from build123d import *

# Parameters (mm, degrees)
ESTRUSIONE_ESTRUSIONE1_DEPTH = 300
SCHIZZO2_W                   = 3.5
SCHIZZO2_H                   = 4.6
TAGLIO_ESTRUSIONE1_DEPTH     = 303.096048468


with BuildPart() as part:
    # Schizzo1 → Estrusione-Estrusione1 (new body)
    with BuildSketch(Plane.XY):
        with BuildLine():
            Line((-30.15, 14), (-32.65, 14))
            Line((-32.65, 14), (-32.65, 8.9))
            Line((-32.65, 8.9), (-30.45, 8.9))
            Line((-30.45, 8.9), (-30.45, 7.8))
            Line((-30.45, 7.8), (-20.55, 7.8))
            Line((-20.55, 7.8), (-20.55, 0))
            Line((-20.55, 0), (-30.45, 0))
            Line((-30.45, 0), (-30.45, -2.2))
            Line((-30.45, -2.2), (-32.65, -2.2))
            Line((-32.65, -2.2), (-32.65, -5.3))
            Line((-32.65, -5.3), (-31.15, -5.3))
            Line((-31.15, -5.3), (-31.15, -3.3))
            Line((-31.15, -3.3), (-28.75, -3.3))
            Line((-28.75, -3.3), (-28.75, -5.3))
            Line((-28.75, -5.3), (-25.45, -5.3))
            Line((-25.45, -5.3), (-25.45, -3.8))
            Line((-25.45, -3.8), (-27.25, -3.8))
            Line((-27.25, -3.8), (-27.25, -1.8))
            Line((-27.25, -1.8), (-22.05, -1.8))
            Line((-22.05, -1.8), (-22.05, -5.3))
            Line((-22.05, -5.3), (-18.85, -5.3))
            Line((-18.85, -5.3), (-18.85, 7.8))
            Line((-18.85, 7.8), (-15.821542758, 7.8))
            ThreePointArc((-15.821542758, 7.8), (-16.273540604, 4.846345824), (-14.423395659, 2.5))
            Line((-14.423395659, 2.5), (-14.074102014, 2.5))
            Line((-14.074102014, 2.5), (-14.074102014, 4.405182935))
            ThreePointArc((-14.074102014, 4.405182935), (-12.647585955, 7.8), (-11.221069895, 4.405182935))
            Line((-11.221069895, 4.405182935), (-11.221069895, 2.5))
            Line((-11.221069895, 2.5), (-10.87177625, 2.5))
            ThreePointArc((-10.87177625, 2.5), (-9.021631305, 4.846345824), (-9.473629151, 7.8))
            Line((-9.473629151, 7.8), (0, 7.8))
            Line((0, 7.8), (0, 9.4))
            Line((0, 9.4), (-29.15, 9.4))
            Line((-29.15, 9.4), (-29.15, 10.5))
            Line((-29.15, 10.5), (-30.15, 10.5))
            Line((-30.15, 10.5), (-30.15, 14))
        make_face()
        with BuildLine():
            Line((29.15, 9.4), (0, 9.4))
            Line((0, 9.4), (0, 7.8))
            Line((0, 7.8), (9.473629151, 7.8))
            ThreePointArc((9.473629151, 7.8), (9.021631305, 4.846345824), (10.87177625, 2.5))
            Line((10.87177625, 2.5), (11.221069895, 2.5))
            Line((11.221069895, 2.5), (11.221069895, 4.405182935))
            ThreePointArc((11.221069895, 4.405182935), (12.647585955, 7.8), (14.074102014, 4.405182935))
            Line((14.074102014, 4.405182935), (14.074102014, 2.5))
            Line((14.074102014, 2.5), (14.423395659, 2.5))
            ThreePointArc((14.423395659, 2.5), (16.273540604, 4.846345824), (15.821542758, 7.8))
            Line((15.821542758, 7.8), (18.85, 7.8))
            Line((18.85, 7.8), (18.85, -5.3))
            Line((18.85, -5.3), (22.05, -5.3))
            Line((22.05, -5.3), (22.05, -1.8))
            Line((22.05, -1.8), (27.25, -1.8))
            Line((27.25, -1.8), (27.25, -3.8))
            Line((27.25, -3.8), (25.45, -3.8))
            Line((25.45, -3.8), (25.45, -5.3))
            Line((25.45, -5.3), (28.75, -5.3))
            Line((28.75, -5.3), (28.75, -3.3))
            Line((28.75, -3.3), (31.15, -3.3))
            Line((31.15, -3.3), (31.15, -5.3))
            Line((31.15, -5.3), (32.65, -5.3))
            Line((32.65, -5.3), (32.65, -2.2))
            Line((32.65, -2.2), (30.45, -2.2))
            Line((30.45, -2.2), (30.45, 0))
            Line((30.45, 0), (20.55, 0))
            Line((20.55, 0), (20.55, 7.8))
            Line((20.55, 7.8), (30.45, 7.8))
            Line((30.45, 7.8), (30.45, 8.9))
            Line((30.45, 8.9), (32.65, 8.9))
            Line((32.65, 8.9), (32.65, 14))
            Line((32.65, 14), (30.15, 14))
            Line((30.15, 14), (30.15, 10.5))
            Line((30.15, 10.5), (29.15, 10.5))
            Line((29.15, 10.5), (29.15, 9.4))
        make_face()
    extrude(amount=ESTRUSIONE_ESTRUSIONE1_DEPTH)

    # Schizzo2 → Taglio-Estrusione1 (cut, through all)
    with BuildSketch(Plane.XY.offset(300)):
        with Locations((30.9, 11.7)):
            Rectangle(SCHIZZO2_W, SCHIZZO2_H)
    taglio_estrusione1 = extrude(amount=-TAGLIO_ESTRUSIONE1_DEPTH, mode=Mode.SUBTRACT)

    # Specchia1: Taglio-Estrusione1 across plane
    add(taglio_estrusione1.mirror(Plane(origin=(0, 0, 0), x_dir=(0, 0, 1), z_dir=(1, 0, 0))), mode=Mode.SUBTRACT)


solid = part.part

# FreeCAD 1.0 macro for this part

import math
import FreeCAD as App
import Part
import Sketcher
from FreeCAD import Vector
Q = App.Units.Quantity


def add_polygon(sketch, points):
    """Adds a closed chain of lines whose ends are joined by coincident constraints."""
    first, n = sketch.GeometryCount, len(points)
    for a, b in zip(points, points[1:] + points[:1]):
        sketch.addGeometry(Part.LineSegment(App.Vector(*a, 0), App.Vector(*b, 0)), False)
    for i in range(n):
        sketch.addConstraint(Sketcher.Constraint("Coincident", first + i, 2, first + (i + 1) % n, 1))

doc = App.newDocument("Part")
body = doc.addObject("PartDesign::Body", "Body")

# Sketch on XY plane
sketch1 = body.newObject("Sketcher::SketchObject", "Sketch")
sketch1.AttachmentSupport = (doc.getObject("XY_Plane"), [""])
sketch1.MapMode = "FlatFace"
sketch1.addGeometry([
    Part.LineSegment(Vector(-30.15, 14, 0), Vector(-32.65, 14, 0)),  # 0
    Part.LineSegment(Vector(-32.65, 14, 0), Vector(-32.65, 8.9, 0)),  # 1
    Part.LineSegment(Vector(-32.65, 8.9, 0), Vector(-30.45, 8.9, 0)),  # 2
    Part.LineSegment(Vector(-30.45, 8.9, 0), Vector(-30.45, 7.8, 0)),  # 3
    Part.LineSegment(Vector(-30.45, 7.8, 0), Vector(-20.55, 7.8, 0)),  # 4
    Part.LineSegment(Vector(-20.55, 7.8, 0), Vector(-20.55, 0, 0)),  # 5
    Part.LineSegment(Vector(-20.55, 0, 0), Vector(-30.45, 0, 0)),  # 6
    Part.LineSegment(Vector(-30.45, 0, 0), Vector(-30.45, -2.2, 0)),  # 7
    Part.LineSegment(Vector(-30.45, -2.2, 0), Vector(-32.65, -2.2, 0)),  # 8
    Part.LineSegment(Vector(-32.65, -2.2, 0), Vector(-32.65, -5.3, 0)),  # 9
    Part.LineSegment(Vector(-32.65, -5.3, 0), Vector(-31.15, -5.3, 0)),  # 10
    Part.LineSegment(Vector(-31.15, -5.3, 0), Vector(-31.15, -3.3, 0)),  # 11
    Part.LineSegment(Vector(-31.15, -3.3, 0), Vector(-28.75, -3.3, 0)),  # 12
    Part.LineSegment(Vector(-28.75, -3.3, 0), Vector(-28.75, -5.3, 0)),  # 13
    Part.LineSegment(Vector(-28.75, -5.3, 0), Vector(-25.45, -5.3, 0)),  # 14
    Part.LineSegment(Vector(-25.45, -5.3, 0), Vector(-25.45, -3.8, 0)),  # 15
    Part.LineSegment(Vector(-25.45, -3.8, 0), Vector(-27.25, -3.8, 0)),  # 16
    Part.LineSegment(Vector(-27.25, -3.8, 0), Vector(-27.25, -1.8, 0)),  # 17
    Part.LineSegment(Vector(-27.25, -1.8, 0), Vector(-22.05, -1.8, 0)),  # 18
    Part.LineSegment(Vector(-22.05, -1.8, 0), Vector(-22.05, -5.3, 0)),  # 19
    Part.LineSegment(Vector(-22.05, -5.3, 0), Vector(-18.85, -5.3, 0)),  # 20
    Part.LineSegment(Vector(-18.85, -5.3, 0), Vector(-18.85, 7.8, 0)),  # 21
    Part.LineSegment(Vector(-18.85, 7.8, 0), Vector(-15.82, 7.8, 0)),  # 22
    Part.ArcOfCircle(Part.Circle(Vector(-12.65, 5.8, 0), Vector(0, 0, 1), 3.75), math.radians(148), math.radians(242)),  # 23
    Part.LineSegment(Vector(-14.42, 2.5, 0), Vector(-14.07, 2.5, 0)),  # 24
    Part.LineSegment(Vector(-14.07, 2.5, 0), Vector(-14.07, 4.41, 0)),  # 25
    Part.ArcOfCircle(Part.Circle(Vector(-12.65, 5.8, 0), Vector(0, 0, 1), 2), math.radians(-44), math.radians(224)),  # 26
    Part.LineSegment(Vector(-11.22, 4.41, 0), Vector(-11.22, 2.5, 0)),  # 27
    Part.LineSegment(Vector(-11.22, 2.5, 0), Vector(-10.87, 2.5, 0)),  # 28
    Part.ArcOfCircle(Part.Circle(Vector(-12.65, 5.8, 0), Vector(0, 0, 1), 3.75), math.radians(-62), math.radians(32)),  # 29
    Part.LineSegment(Vector(-9.47, 7.8, 0), Vector(9.47, 7.8, 0)),  # 30
    Part.ArcOfCircle(Part.Circle(Vector(12.65, 5.8, 0), Vector(0, 0, 1), 3.75), math.radians(148), math.radians(242)),  # 31
    Part.LineSegment(Vector(10.87, 2.5, 0), Vector(11.22, 2.5, 0)),  # 32
    Part.LineSegment(Vector(11.22, 2.5, 0), Vector(11.22, 4.41, 0)),  # 33
    Part.ArcOfCircle(Part.Circle(Vector(12.65, 5.8, 0), Vector(0, 0, 1), 2), math.radians(-44), math.radians(224)),  # 34
    Part.LineSegment(Vector(14.07, 4.41, 0), Vector(14.07, 2.5, 0)),  # 35
    Part.LineSegment(Vector(14.07, 2.5, 0), Vector(14.42, 2.5, 0)),  # 36
    Part.ArcOfCircle(Part.Circle(Vector(12.65, 5.8, 0), Vector(0, 0, 1), 3.75), math.radians(-62), math.radians(32)),  # 37
    Part.LineSegment(Vector(15.82, 7.8, 0), Vector(18.85, 7.8, 0)),  # 38
    Part.LineSegment(Vector(18.85, 7.8, 0), Vector(18.85, -5.3, 0)),  # 39
    Part.LineSegment(Vector(18.85, -5.3, 0), Vector(22.05, -5.3, 0)),  # 40
    Part.LineSegment(Vector(22.05, -5.3, 0), Vector(22.05, -1.8, 0)),  # 41
    Part.LineSegment(Vector(22.05, -1.8, 0), Vector(27.25, -1.8, 0)),  # 42
    Part.LineSegment(Vector(27.25, -1.8, 0), Vector(27.25, -3.8, 0)),  # 43
    Part.LineSegment(Vector(27.25, -3.8, 0), Vector(25.45, -3.8, 0)),  # 44
    Part.LineSegment(Vector(25.45, -3.8, 0), Vector(25.45, -5.3, 0)),  # 45
    Part.LineSegment(Vector(25.45, -5.3, 0), Vector(28.75, -5.3, 0)),  # 46
    Part.LineSegment(Vector(28.75, -5.3, 0), Vector(28.75, -3.3, 0)),  # 47
    Part.LineSegment(Vector(28.75, -3.3, 0), Vector(31.15, -3.3, 0)),  # 48
    Part.LineSegment(Vector(31.15, -3.3, 0), Vector(31.15, -5.3, 0)),  # 49
    Part.LineSegment(Vector(31.15, -5.3, 0), Vector(32.65, -5.3, 0)),  # 50
    Part.LineSegment(Vector(32.65, -5.3, 0), Vector(32.65, -2.2, 0)),  # 51
    Part.LineSegment(Vector(32.65, -2.2, 0), Vector(30.45, -2.2, 0)),  # 52
    Part.LineSegment(Vector(30.45, -2.2, 0), Vector(30.45, 0, 0)),  # 53
    Part.LineSegment(Vector(30.45, 0, 0), Vector(20.55, 0, 0)),  # 54
    Part.LineSegment(Vector(20.55, 0, 0), Vector(20.55, 7.8, 0)),  # 55
    Part.LineSegment(Vector(20.55, 7.8, 0), Vector(30.45, 7.8, 0)),  # 56
    Part.LineSegment(Vector(30.45, 7.8, 0), Vector(30.45, 8.9, 0)),  # 57
    Part.LineSegment(Vector(30.45, 8.9, 0), Vector(32.65, 8.9, 0)),  # 58
    Part.LineSegment(Vector(32.65, 8.9, 0), Vector(32.65, 14, 0)),  # 59
    Part.LineSegment(Vector(32.65, 14, 0), Vector(30.15, 14, 0)),  # 60
    Part.LineSegment(Vector(30.15, 14, 0), Vector(30.15, 10.5, 0)),  # 61
    Part.LineSegment(Vector(30.15, 10.5, 0), Vector(29.15, 10.5, 0)),  # 62
    Part.LineSegment(Vector(29.15, 10.5, 0), Vector(29.15, 9.4, 0)),  # 63
    Part.LineSegment(Vector(29.15, 9.4, 0), Vector(-29.15, 9.4, 0)),  # 64
    Part.LineSegment(Vector(-29.15, 9.4, 0), Vector(-29.15, 10.5, 0)),  # 65
    Part.LineSegment(Vector(-29.15, 10.5, 0), Vector(-30.15, 10.5, 0)),  # 66
    Part.LineSegment(Vector(-30.15, 10.5, 0), Vector(-30.15, 14, 0)),  # 67
], False)
sketch1.addConstraint([
    Sketcher.Constraint("Coincident", 0, 2, 1, 1),
    Sketcher.Constraint("Coincident", 1, 2, 2, 1),
    Sketcher.Constraint("Coincident", 2, 2, 3, 1),
    Sketcher.Constraint("Coincident", 3, 2, 4, 1),
    Sketcher.Constraint("Coincident", 4, 2, 5, 1),
    Sketcher.Constraint("Coincident", 5, 2, 6, 1),
    Sketcher.Constraint("Coincident", 6, 2, 7, 1),
    Sketcher.Constraint("Coincident", 7, 2, 8, 1),
    Sketcher.Constraint("Coincident", 8, 2, 9, 1),
    Sketcher.Constraint("Coincident", 9, 2, 10, 1),
    Sketcher.Constraint("Coincident", 10, 2, 11, 1),
    Sketcher.Constraint("Coincident", 11, 2, 12, 1),
    Sketcher.Constraint("Coincident", 12, 2, 13, 1),
    Sketcher.Constraint("Coincident", 13, 2, 14, 1),
    Sketcher.Constraint("Coincident", 14, 2, 15, 1),
    Sketcher.Constraint("Coincident", 15, 2, 16, 1),
    Sketcher.Constraint("Coincident", 16, 2, 17, 1),
    Sketcher.Constraint("Coincident", 17, 2, 18, 1),
    Sketcher.Constraint("Coincident", 18, 2, 19, 1),
    Sketcher.Constraint("Coincident", 19, 2, 20, 1),
    Sketcher.Constraint("Coincident", 20, 2, 21, 1),
    Sketcher.Constraint("Coincident", 21, 2, 22, 1),
    Sketcher.Constraint("Coincident", 22, 2, 23, 1),
    Sketcher.Constraint("Coincident", 23, 2, 24, 1),
    Sketcher.Constraint("Coincident", 24, 2, 25, 1),
    Sketcher.Constraint("Coincident", 25, 2, 26, 2),
    Sketcher.Constraint("Coincident", 26, 1, 27, 1),
    Sketcher.Constraint("Coincident", 27, 2, 28, 1),
    Sketcher.Constraint("Coincident", 28, 2, 29, 1),
    Sketcher.Constraint("Coincident", 29, 2, 30, 1),
    Sketcher.Constraint("Coincident", 30, 2, 31, 1),
    Sketcher.Constraint("Coincident", 31, 2, 32, 1),
    Sketcher.Constraint("Coincident", 32, 2, 33, 1),
    Sketcher.Constraint("Coincident", 33, 2, 34, 2),
    Sketcher.Constraint("Coincident", 34, 1, 35, 1),
    Sketcher.Constraint("Coincident", 35, 2, 36, 1),
    Sketcher.Constraint("Coincident", 36, 2, 37, 1),
    Sketcher.Constraint("Coincident", 37, 2, 38, 1),
    Sketcher.Constraint("Coincident", 38, 2, 39, 1),
    Sketcher.Constraint("Coincident", 39, 2, 40, 1),
    Sketcher.Constraint("Coincident", 40, 2, 41, 1),
    Sketcher.Constraint("Coincident", 41, 2, 42, 1),
    Sketcher.Constraint("Coincident", 42, 2, 43, 1),
    Sketcher.Constraint("Coincident", 43, 2, 44, 1),
    Sketcher.Constraint("Coincident", 44, 2, 45, 1),
    Sketcher.Constraint("Coincident", 45, 2, 46, 1),
    Sketcher.Constraint("Coincident", 46, 2, 47, 1),
    Sketcher.Constraint("Coincident", 47, 2, 48, 1),
    Sketcher.Constraint("Coincident", 48, 2, 49, 1),
    Sketcher.Constraint("Coincident", 49, 2, 50, 1),
    Sketcher.Constraint("Coincident", 50, 2, 51, 1),
    Sketcher.Constraint("Coincident", 51, 2, 52, 1),
    Sketcher.Constraint("Coincident", 52, 2, 53, 1),
    Sketcher.Constraint("Coincident", 53, 2, 54, 1),
    Sketcher.Constraint("Coincident", 54, 2, 55, 1),
    Sketcher.Constraint("Coincident", 55, 2, 56, 1),
    Sketcher.Constraint("Coincident", 56, 2, 57, 1),
    Sketcher.Constraint("Coincident", 57, 2, 58, 1),
    Sketcher.Constraint("Coincident", 58, 2, 59, 1),
    Sketcher.Constraint("Coincident", 59, 2, 60, 1),
    Sketcher.Constraint("Coincident", 60, 2, 61, 1),
    Sketcher.Constraint("Coincident", 61, 2, 62, 1),
    Sketcher.Constraint("Coincident", 62, 2, 63, 1),
    Sketcher.Constraint("Coincident", 63, 2, 64, 1),
    Sketcher.Constraint("Coincident", 64, 2, 65, 1),
    Sketcher.Constraint("Coincident", 65, 2, 66, 1),
    Sketcher.Constraint("Coincident", 66, 2, 67, 1),
    Sketcher.Constraint("Coincident", 67, 2, 0, 1),
    Sketcher.Constraint("Horizontal", 0),
    Sketcher.Constraint("Vertical", 1),
    Sketcher.Constraint("Horizontal", 2),
    Sketcher.Constraint("Vertical", 3),
    Sketcher.Constraint("Horizontal", 4),
    Sketcher.Constraint("Vertical", 5),
    Sketcher.Constraint("Horizontal", 6),
    Sketcher.Constraint("Vertical", 7),
    Sketcher.Constraint("Horizontal", 8),
    Sketcher.Constraint("Vertical", 9),
    Sketcher.Constraint("Horizontal", 10),
    Sketcher.Constraint("Vertical", 11),
    Sketcher.Constraint("Horizontal", 12),
    Sketcher.Constraint("Vertical", 13),
    Sketcher.Constraint("Horizontal", 14),
    Sketcher.Constraint("Vertical", 15),
    Sketcher.Constraint("Horizontal", 16),
    Sketcher.Constraint("Vertical", 17),
    Sketcher.Constraint("Horizontal", 18),
    Sketcher.Constraint("Vertical", 19),
    Sketcher.Constraint("Horizontal", 20),
    Sketcher.Constraint("Vertical", 21),
    Sketcher.Constraint("Horizontal", 22),
    Sketcher.Constraint("Horizontal", 24),
    Sketcher.Constraint("Vertical", 25),
    Sketcher.Constraint("Vertical", 27),
    Sketcher.Constraint("Horizontal", 28),
    Sketcher.Constraint("Horizontal", 30),
    Sketcher.Constraint("Horizontal", 32),
    Sketcher.Constraint("Vertical", 33),
    Sketcher.Constraint("Vertical", 35),
    Sketcher.Constraint("Horizontal", 36),
    Sketcher.Constraint("Horizontal", 38),
    Sketcher.Constraint("Vertical", 39),
    Sketcher.Constraint("Horizontal", 40),
    Sketcher.Constraint("Vertical", 41),
    Sketcher.Constraint("Horizontal", 42),
    Sketcher.Constraint("Vertical", 43),
    Sketcher.Constraint("Horizontal", 44),
    Sketcher.Constraint("Vertical", 45),
    Sketcher.Constraint("Horizontal", 46),
    Sketcher.Constraint("Vertical", 47),
    Sketcher.Constraint("Horizontal", 48),
    Sketcher.Constraint("Vertical", 49),
    Sketcher.Constraint("Horizontal", 50),
    Sketcher.Constraint("Vertical", 51),
    Sketcher.Constraint("Horizontal", 52),
    Sketcher.Constraint("Vertical", 53),
    Sketcher.Constraint("Horizontal", 54),
    Sketcher.Constraint("Vertical", 55),
    Sketcher.Constraint("Horizontal", 56),
    Sketcher.Constraint("Vertical", 57),
    Sketcher.Constraint("Horizontal", 58),
    Sketcher.Constraint("Vertical", 59),
    Sketcher.Constraint("Horizontal", 60),
    Sketcher.Constraint("Vertical", 61),
    Sketcher.Constraint("Horizontal", 62),
    Sketcher.Constraint("Vertical", 63),
    Sketcher.Constraint("Horizontal", 64),
    Sketcher.Constraint("Vertical", 65),
    Sketcher.Constraint("Horizontal", 66),
    Sketcher.Constraint("Vertical", 67),
    Sketcher.Constraint("Coincident", 26, 3, 23, 3),
    Sketcher.Constraint("Coincident", 29, 3, 23, 3),
    Sketcher.Constraint("Coincident", 34, 3, 31, 3),
    Sketcher.Constraint("Coincident", 37, 3, 31, 3),
    Sketcher.Constraint("Equal", 23, 29),
    Sketcher.Constraint("Equal", 29, 31),
    Sketcher.Constraint("Equal", 26, 34),
    Sketcher.Constraint("Equal", 31, 37),
    Sketcher.Constraint("Symmetric", 6, 2, 53, 2, -1, 1),
    Sketcher.Constraint("Symmetric", 23, 3, 31, 3, -2),
    Sketcher.Constraint("Symmetric", 27, 2, 32, 2, -2),
    Sketcher.Constraint("Symmetric", 24, 2, 35, 2, -2),
    Sketcher.Constraint("Symmetric", 21, 2, 38, 2, -2),
    Sketcher.Constraint("Symmetric", 19, 2, 40, 2, -2),
    Sketcher.Constraint("Symmetric", 17, 2, 42, 2, -2),
    Sketcher.Constraint("Symmetric", 15, 2, 44, 2, -2),
    Sketcher.Constraint("Symmetric", 13, 2, 46, 2, -2),
    Sketcher.Constraint("Symmetric", 11, 2, 48, 2, -2),
    Sketcher.Constraint("Symmetric", 9, 2, 50, 2, -2),
    Sketcher.Constraint("Symmetric", 5, 2, 54, 2, -2),
    Sketcher.Constraint("Symmetric", 3, 2, 56, 2, -2),
    Sketcher.Constraint("Symmetric", 1, 2, 58, 2, -2),
    Sketcher.Constraint("Symmetric", 62, 2, 65, 2, -2),
    Sketcher.Constraint("Symmetric", 60, 2, 67, 2, -2),
    Sketcher.Constraint("Horizontal", 10, 2, 13, 2),
    Sketcher.Constraint("Horizontal", 14, 2, 19, 2),
    Sketcher.Constraint("Horizontal", 4, 2, 21, 2),
    Sketcher.Constraint("Horizontal", 25, 2, 26, 1),
    Sketcher.Constraint("Horizontal", 24, 2, 27, 2),
    Sketcher.Constraint("Horizontal", 22, 2, 29, 2),
    Sketcher.Constraint("Horizontal", 8, 2, 51, 2),
    Sketcher.Constraint("Vertical", 3, 2, 6, 2),
    Sketcher.Constraint("Vertical", 1, 2, 8, 2),
    Sketcher.Constraint("Equal", 58, 7),
    Sketcher.Constraint("Equal", 50, 15),
    Sketcher.Constraint("Equal", 13, 17),
    Sketcher.Constraint("Equal", 41, 61),
    Sketcher.Constraint("Equal", 57, 63),
    Sketcher.Constraint("DistanceX", 62, 2, 62, 1, Q("1 mm")),
    Sketcher.Constraint("DistanceY", 11, 1, 11, 2, Q("2 mm")),
    Sketcher.Constraint("Radius", 23, Q("3.75 mm")),
    Sketcher.Constraint("DistanceX", 0, 2, 0, 1, Q("2.5 mm")),
    Sketcher.Constraint("DistanceX", 2, 1, 2, 2, Q("2.2 mm")),
    Sketcher.Constraint("DistanceX", 4, 1, 4, 2, Q("9.9 mm")),
    Sketcher.Constraint("DistanceX", 10, 1, 10, 2, Q("1.5 mm")),
    Sketcher.Constraint("DistanceX", 12, 1, 12, 2, Q("2.4 mm")),
    Sketcher.Constraint("DistanceX", 14, 1, 14, 2, Q("3.3 mm")),
    Sketcher.Constraint("DistanceX", 16, 2, 16, 1, Q("1.8 mm")),
    Sketcher.Constraint("DistanceX", 18, 1, 18, 2, Q("5.2 mm")),
    Sketcher.Constraint("DistanceX", 20, 1, 20, 2, Q("3.2 mm")),
    Sketcher.Constraint("DistanceX", 64, 2, 64, 1, Q("58.3 mm")),
    Sketcher.Constraint("DistanceY", 1, 2, 1, 1, Q("5.1 mm")),
    Sketcher.Constraint("DistanceY", 3, 2, 3, 1, Q("1.1 mm")),
    Sketcher.Constraint("DistanceY", 5, 2, 5, 1, Q("7.8 mm")),
    Sketcher.Constraint("DistanceY", 9, 2, 9, 1, Q("3.1 mm")),
    Sketcher.Constraint("DistanceY", -1, 1, 23, 2, Q("2.5 mm")),
    Sketcher.Constraint("Radius", 26, Q("1.997122 mm")),
    Sketcher.Constraint("DistanceX", 30, 1, 30, 2, Q("18.947258 mm")),
    Sketcher.Constraint("DistanceX", 22, 1, 22, 2, Q("3.028457 mm")),
    Sketcher.Constraint("DistanceX", 24, 1, 24, 2, Q("0.349294 mm")),
])
pad1 = body.newObject("PartDesign::Pad", "Pad")
pad1.Profile = sketch1
pad1.Length = 300

# Sketch on XY plane
sketch2 = body.newObject("Sketcher::SketchObject", "Sketch001")
sketch2.AttachmentSupport = (doc.getObject("XY_Plane"), [""])
sketch2.MapMode = "FlatFace"
sketch2.AttachmentOffset = App.Placement(Vector(0, 0, 300), App.Rotation())
add_polygon(sketch2, [(29.1, 14), (29.1, 9.4), (32.6, 9.4), (32.6, 14)])  # lines 0-3
sketch2.addConstraint([
    Sketcher.Constraint("Vertical", 0),
    Sketcher.Constraint("Horizontal", 1),
    Sketcher.Constraint("Vertical", 2),
    Sketcher.Constraint("Horizontal", 3),
    Sketcher.Constraint("DistanceX", 1, 1, 1, 2, Q("3.5 mm")),
    Sketcher.Constraint("DistanceY", 0, 2, 0, 1, Q("4.6 mm")),
    Sketcher.Constraint("DistanceY", -1, 1, 2, 2, Q("14 mm")),
    Sketcher.Constraint("DistanceX", -1, 1, 0, 2, Q("29.15 mm")),
])
pocket1 = body.newObject("PartDesign::Pocket", "Pocket")
pocket1.Profile = sketch2
pocket1.Type = "ThroughAll"
doc.recompute()

mirrored = body.newObject("PartDesign::Mirrored", "Mirrored")
mirrored.Originals = [pocket1]
mirrored.MirrorPlane = (doc.getObject("YZ_Plane"), [""])
body.Tip = mirrored

doc.recompute()
